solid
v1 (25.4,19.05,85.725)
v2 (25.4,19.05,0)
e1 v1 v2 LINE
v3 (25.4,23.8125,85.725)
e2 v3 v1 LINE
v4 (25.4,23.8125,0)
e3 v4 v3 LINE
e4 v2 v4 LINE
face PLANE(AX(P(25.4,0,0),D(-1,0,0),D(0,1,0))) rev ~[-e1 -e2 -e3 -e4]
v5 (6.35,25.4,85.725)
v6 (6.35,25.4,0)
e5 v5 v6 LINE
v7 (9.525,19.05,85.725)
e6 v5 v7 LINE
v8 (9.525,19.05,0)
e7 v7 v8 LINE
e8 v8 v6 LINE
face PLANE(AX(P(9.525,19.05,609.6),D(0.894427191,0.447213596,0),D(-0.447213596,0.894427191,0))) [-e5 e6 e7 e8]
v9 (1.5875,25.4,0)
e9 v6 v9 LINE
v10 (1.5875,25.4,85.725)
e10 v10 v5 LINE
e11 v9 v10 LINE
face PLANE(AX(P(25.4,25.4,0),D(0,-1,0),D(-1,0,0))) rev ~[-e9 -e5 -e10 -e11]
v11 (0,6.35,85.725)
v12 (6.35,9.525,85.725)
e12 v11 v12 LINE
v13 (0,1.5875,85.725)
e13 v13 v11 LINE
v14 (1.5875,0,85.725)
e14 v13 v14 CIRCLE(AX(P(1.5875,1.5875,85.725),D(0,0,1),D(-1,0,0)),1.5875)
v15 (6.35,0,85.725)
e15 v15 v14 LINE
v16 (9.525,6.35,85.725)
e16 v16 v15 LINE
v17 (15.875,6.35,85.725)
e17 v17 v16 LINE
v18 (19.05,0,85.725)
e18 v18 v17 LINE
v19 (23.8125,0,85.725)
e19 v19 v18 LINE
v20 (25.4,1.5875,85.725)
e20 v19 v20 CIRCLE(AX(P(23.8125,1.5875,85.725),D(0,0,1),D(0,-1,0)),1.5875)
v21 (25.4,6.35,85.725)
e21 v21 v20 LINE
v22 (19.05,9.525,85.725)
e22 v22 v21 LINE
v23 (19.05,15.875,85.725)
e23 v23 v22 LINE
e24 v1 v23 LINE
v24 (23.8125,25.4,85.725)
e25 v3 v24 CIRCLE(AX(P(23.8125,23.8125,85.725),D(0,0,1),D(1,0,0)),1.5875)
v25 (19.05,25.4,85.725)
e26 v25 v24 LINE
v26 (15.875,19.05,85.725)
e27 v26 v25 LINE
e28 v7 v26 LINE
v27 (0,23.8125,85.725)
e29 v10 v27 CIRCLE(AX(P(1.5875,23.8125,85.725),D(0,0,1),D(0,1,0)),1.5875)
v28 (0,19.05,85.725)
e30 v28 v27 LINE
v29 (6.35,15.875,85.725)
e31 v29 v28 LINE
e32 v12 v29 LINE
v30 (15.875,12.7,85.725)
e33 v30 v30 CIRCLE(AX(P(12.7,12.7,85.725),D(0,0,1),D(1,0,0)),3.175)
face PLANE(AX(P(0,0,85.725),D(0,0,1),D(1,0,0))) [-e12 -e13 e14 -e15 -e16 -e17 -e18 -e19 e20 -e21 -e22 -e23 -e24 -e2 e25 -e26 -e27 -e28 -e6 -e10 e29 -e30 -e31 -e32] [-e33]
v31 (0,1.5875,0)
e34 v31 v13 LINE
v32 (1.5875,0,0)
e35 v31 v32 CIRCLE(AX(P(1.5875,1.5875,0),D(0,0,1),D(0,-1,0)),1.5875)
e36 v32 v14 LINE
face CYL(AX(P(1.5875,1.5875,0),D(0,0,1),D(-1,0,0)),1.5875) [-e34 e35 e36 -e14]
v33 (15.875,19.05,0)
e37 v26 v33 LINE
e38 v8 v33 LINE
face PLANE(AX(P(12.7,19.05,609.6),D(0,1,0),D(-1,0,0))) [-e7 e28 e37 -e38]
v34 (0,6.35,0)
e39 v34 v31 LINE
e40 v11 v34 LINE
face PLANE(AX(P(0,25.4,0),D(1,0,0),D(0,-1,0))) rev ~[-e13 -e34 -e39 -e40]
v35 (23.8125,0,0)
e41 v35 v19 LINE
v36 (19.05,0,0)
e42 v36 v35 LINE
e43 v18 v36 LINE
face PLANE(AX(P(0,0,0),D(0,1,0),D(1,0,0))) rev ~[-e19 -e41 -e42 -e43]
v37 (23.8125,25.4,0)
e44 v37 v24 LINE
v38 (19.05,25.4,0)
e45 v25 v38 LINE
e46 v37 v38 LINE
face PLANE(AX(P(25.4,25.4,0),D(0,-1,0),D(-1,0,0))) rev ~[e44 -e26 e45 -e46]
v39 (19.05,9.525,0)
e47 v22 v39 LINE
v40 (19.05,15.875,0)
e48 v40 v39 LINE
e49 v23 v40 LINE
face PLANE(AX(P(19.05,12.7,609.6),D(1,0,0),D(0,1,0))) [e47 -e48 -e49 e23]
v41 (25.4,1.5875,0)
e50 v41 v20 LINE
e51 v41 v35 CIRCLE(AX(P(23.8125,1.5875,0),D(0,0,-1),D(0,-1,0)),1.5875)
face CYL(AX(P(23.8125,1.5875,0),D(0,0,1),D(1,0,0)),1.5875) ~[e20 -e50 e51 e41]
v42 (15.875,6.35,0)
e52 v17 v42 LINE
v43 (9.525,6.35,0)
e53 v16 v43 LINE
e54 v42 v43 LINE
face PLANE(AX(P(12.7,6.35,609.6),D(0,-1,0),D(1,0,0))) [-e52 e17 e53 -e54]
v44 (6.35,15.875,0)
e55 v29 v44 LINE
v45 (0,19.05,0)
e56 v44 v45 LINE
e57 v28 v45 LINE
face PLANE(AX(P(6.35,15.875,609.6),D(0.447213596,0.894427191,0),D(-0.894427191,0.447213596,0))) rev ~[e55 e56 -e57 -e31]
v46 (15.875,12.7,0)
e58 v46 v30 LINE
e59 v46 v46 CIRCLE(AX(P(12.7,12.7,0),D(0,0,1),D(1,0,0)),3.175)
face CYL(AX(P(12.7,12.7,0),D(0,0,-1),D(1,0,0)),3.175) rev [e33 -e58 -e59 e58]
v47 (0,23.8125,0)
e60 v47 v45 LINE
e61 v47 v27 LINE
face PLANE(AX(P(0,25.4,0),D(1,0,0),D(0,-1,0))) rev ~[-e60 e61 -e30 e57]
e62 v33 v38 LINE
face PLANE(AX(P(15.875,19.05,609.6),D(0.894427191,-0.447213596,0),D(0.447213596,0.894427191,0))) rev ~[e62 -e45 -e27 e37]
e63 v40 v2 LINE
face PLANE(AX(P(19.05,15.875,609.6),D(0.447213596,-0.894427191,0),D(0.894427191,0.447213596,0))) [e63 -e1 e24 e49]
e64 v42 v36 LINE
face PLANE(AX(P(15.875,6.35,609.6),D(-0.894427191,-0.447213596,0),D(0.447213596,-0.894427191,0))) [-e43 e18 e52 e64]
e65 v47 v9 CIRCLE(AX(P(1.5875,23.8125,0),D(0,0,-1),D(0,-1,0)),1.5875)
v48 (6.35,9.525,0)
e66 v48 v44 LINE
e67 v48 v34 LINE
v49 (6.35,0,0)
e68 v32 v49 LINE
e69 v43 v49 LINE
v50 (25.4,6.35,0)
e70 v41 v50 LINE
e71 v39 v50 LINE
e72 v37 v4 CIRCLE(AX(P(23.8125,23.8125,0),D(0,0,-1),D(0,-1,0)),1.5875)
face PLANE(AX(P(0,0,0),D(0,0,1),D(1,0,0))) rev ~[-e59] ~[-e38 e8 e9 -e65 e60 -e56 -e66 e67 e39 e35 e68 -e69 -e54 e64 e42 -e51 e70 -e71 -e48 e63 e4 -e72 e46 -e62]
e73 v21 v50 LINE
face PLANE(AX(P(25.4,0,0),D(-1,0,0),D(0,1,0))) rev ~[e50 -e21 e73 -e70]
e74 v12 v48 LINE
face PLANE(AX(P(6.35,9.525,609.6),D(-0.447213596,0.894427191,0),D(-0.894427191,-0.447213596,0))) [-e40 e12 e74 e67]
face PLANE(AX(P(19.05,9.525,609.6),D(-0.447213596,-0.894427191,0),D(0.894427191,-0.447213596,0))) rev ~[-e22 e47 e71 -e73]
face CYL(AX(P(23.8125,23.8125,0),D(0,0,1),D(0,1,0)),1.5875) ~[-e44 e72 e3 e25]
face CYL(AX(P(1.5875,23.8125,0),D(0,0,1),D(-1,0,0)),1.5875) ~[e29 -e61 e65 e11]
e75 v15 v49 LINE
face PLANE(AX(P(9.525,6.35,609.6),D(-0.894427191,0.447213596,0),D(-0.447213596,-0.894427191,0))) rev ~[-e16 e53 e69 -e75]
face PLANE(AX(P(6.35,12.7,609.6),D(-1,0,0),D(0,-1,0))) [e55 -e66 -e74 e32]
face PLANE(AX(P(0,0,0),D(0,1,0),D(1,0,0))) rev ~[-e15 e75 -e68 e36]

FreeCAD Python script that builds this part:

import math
import FreeCAD as App
import Part
import Sketcher

V = App.Vector
Q = App.Units.Quantity


def edges_at(feature, points):
    """Names of the edges that pass closest to the given points."""
    edges = feature.Shape.Edges
    near = lambda p: min(range(len(edges)), key=lambda i: edges[i].distToShape(Part.Vertex(*p))[0])
    return sorted({f"Edge{near(p) + 1}" for p in points})


def add_polygon(sketch, points):
    """Adds a closed chain of lines whose ends are joined by coincident constraints."""
    first, n = sketch.GeometryCount, len(points)
    for a, b in zip(points, points[1:] + points[:1]):
        sketch.addGeometry(Part.LineSegment(App.Vector(*a, 0), App.Vector(*b, 0)), False)
    for i in range(n):
        sketch.addConstraint(Sketcher.Constraint("Coincident", first + i, 2, first + (i + 1) % n, 1))

doc = App.newDocument("Part")
params = doc.addObject("Spreadsheet::Sheet", "Params")
for row, (alias, value) in enumerate([
    ("sketch1_diameter", "0.25 in"),
    ("sketch1_width", "1 in"),
    ("pad1_length", "24 in"),
    ("fillet_radius", "0.0625 in"),
    ("sketch2_width", "0.25 in"),
    ("sketch2_width2", "0.5 in"),
    ("pocket1_length", "24 in"),
    ("sketch3_diameter", "0.25 in"),
    ("sketch3_radius", "0.0625 in"),
    ("sketch3_width", "0.25 in"),
    ("pocket2_length", "20.375 in"),
    ("sketch4_diameter", "0.25 in"),
    ("sketch4_radius", "0.0625 in"),
    ("sketch4_width", "0.25 in"),
    ("pocket3_length", "0.25 in"),
], start=1):
    params.set(f"A{row}", alias)
    params.set(f"B{row}", "=" + value)
    params.setAlias(f"B{row}", alias)

body = doc.addObject("PartDesign::Body", "Body")

# Sketch on XY plane
sketch1 = body.newObject("Sketcher::SketchObject", "Sketch")
sketch1.AttachmentSupport = (doc.getObject("XY_Plane"), [""])
sketch1.MapMode = "FlatFace"
add_polygon(sketch1, [(0, 25.4), (0, 0), (25.4, 0), (25.4, 25.4)])  # lines 0-3
sketch1.addGeometry(Part.Circle(V(12.7, 12.7, 0), V(0, 0, 1), 3.2), False)  # 4
sketch1.addConstraint([
    Sketcher.Constraint("Vertical", 0),
    Sketcher.Constraint("Horizontal", 1),
    Sketcher.Constraint("Vertical", 2),
    Sketcher.Constraint("Horizontal", 3),
    Sketcher.Constraint("Coincident", 0, 2, -1, 1),
    Sketcher.Constraint("Equal", 3, 0),
    Sketcher.Constraint("Diameter", 4, Q("0.25 in")),
    Sketcher.Constraint("DistanceX", 1, 1, 1, 2, Q("1 in")),
    Sketcher.Constraint("DistanceX", -1, 1, 4, 3, Q("0.5 in")),
    Sketcher.Constraint("DistanceY", -1, 1, 4, 3, Q("0.5 in")),
])
sketch1.setExpression("Constraints[10]", "Params.sketch1_diameter")
sketch1.setExpression("Constraints[11]", "Params.sketch1_width")
pad1 = body.newObject("PartDesign::Pad", "Pad")
pad1.Profile = sketch1
pad1.setExpression("Length", "Params.pad1_length")
doc.recompute()

fillet = body.newObject("PartDesign::Fillet", "Fillet")
fillet.Base = (pad1, edges_at(pad1, [
    (25.4, 25.4, 304.8),
    (0, 25.4, 304.8),
    (25.4, 0, 304.8),
    (0, 0, 304.8),
]))
fillet.setExpression("Radius", "Params.fillet_radius")

# Sketch on XY plane
sketch2 = body.newObject("Sketcher::SketchObject", "Sketch001")
sketch2.AttachmentSupport = (doc.getObject("XY_Plane"), [""])
sketch2.MapMode = "FlatFace"
sketch2.AttachmentOffset = App.Placement(V(0, 0, 24 * 25.4), App.Rotation())
add_polygon(sketch2, [(16, 19), (19, 25), (6, 25), (10, 19)])  # lines 0-3
sketch2.addConstraint([
    Sketcher.Constraint("Horizontal", 1),
    Sketcher.Constraint("Horizontal", 3),
    Sketcher.Constraint("Equal", 0, 2),
    Sketcher.Constraint("DistanceX", 3, 1, 3, 2, Q("0.25 in")),
    Sketcher.Constraint("DistanceX", -1, 1, 1, 2, Q("0.25 in")),
    Sketcher.Constraint("DistanceY", 2, 2, 1, 2, Q("0.25 in")),
    Sketcher.Constraint("DistanceX", 1, 2, 1, 1, Q("0.5 in")),
    Sketcher.Constraint("DistanceY", -1, 1, 0, 2, Q("1 in")),
])
sketch2.setExpression("Constraints[7]", "Params.sketch2_width")
sketch2.setExpression("Constraints[10]", "Params.sketch2_width2")
pocket1 = body.newObject("PartDesign::Pocket", "Pocket")
pocket1.Profile = sketch2
pocket1.setExpression("Length", "Params.pocket1_length")
doc.recompute()

datumline = body.newObject("PartDesign::Line", "DatumLine")
datumline.Placement = App.Placement(V(12.7, 12.7, 0), App.Rotation(V(0, 0, 1), V(0, 0, 1)))
polarpattern = body.newObject("PartDesign::PolarPattern", "PolarPattern")
polarpattern.Originals = [pocket1]
polarpattern.Axis = (datumline, [""])
polarpattern.Angle = 360
polarpattern.Occurrences = 4
body.Tip = polarpattern

# Sketch on XY plane
sketch3 = body.newObject("Sketcher::SketchObject", "Sketch002")
sketch3.AttachmentSupport = (doc.getObject("XY_Plane"), [""])
sketch3.MapMode = "FlatFace"
sketch3.AttachmentOffset = App.Placement(V(0, 0, 24 * 25.4), App.Rotation())
sketch3.addGeometry([
    Part.LineSegment(V(19.1, 9.5, 0), V(19.1, 15.9, 0)),  # 0
    Part.LineSegment(V(19.1, 15.9, 0), V(25.4, 19.1, 0)),  # 1
    Part.LineSegment(V(25.4, 19.1, 0), V(25.4, 23.8, 0)),  # 2
    Part.ArcOfCircle(Part.Circle(V(23.8, 23.8, 0), V(0, 0, 1), 1.6), math.radians(0), math.radians(90)),  # 3
    Part.LineSegment(V(23.8, 25.4, 0), V(19.1, 25.4, 0)),  # 4
    Part.LineSegment(V(19.1, 25.4, 0), V(15.9, 19.1, 0)),  # 5
    Part.LineSegment(V(15.9, 19.1, 0), V(9.5, 19.1, 0)),  # 6
    Part.LineSegment(V(9.5, 19.1, 0), V(6.3, 25.4, 0)),  # 7
    Part.LineSegment(V(6.3, 25.4, 0), V(1.6, 25.4, 0)),  # 8
    Part.ArcOfCircle(Part.Circle(V(1.6, 23.8, 0), V(0, 0, 1), 1.6), math.radians(90), math.radians(180)),  # 9
    Part.LineSegment(V(0, 23.8, 0), V(0, 19.1, 0)),  # 10
    Part.LineSegment(V(0, 19.1, 0), V(6.3, 15.9, 0)),  # 11
    Part.LineSegment(V(6.3, 15.9, 0), V(6.3, 9.5, 0)),  # 12
    Part.LineSegment(V(6.3, 9.5, 0), V(0, 6.3, 0)),  # 13
    Part.LineSegment(V(0, 6.3, 0), V(0, 1.6, 0)),  # 14
    Part.ArcOfCircle(Part.Circle(V(1.6, 1.6, 0), V(0, 0, 1), 1.6), math.radians(180), math.radians(270)),  # 15
    Part.LineSegment(V(1.6, 0, 0), V(6.3, 0, 0)),  # 16
    Part.LineSegment(V(6.3, 0, 0), V(9.5, 6.3, 0)),  # 17
    Part.LineSegment(V(9.5, 6.3, 0), V(15.9, 6.3, 0)),  # 18
    Part.LineSegment(V(15.9, 6.3, 0), V(19.1, 0, 0)),  # 19
    Part.LineSegment(V(19.1, 0, 0), V(23.8, 0, 0)),  # 20
    Part.ArcOfCircle(Part.Circle(V(23.8, 1.6, 0), V(0, 0, 1), 1.6), math.radians(-90), math.radians(0)),  # 21
    Part.LineSegment(V(25.4, 1.6, 0), V(25.4, 6.3, 0)),  # 22
    Part.LineSegment(V(25.4, 6.3, 0), V(19.1, 9.5, 0)),  # 23
    Part.Circle(V(12.7, 12.7, 0), V(0, 0, 1), 3.2),  # 24
], False)
sketch3.addConstraint([
    Sketcher.Constraint("Coincident", 0, 2, 1, 1),
    Sketcher.Constraint("Coincident", 1, 2, 2, 1),
    Sketcher.Constraint("Tangent", 2, 2, 3, 1),
    Sketcher.Constraint("Tangent", 3, 2, 4, 1),
    Sketcher.Constraint("Coincident", 4, 2, 5, 1),
    Sketcher.Constraint("Coincident", 5, 2, 6, 1),
    Sketcher.Constraint("Coincident", 6, 2, 7, 1),
    Sketcher.Constraint("Coincident", 7, 2, 8, 1),
    Sketcher.Constraint("Tangent", 8, 2, 9, 1),
    Sketcher.Constraint("Tangent", 9, 2, 10, 1),
    Sketcher.Constraint("Coincident", 10, 2, 11, 1),
    Sketcher.Constraint("Coincident", 11, 2, 12, 1),
    Sketcher.Constraint("Coincident", 12, 2, 13, 1),
    Sketcher.Constraint("Coincident", 13, 2, 14, 1),
    Sketcher.Constraint("Tangent", 14, 2, 15, 1),
    Sketcher.Constraint("Tangent", 15, 2, 16, 1),
    Sketcher.Constraint("Coincident", 16, 2, 17, 1),
    Sketcher.Constraint("Coincident", 17, 2, 18, 1),
    Sketcher.Constraint("Coincident", 18, 2, 19, 1),
    Sketcher.Constraint("Coincident", 19, 2, 20, 1),
    Sketcher.Constraint("Tangent", 20, 2, 21, 1),
    Sketcher.Constraint("Tangent", 21, 2, 22, 1),
    Sketcher.Constraint("Coincident", 22, 2, 23, 1),
    Sketcher.Constraint("Coincident", 23, 2, 0, 1),
    Sketcher.Constraint("Vertical", 0),
    Sketcher.Constraint("Vertical", 2),
    Sketcher.Constraint("Horizontal", 4),
    Sketcher.Constraint("Horizontal", 6),
    Sketcher.Constraint("Horizontal", 8),
    Sketcher.Constraint("Vertical", 10),
    Sketcher.Constraint("Vertical", 12),
    Sketcher.Constraint("Vertical", 14),
    Sketcher.Constraint("Horizontal", 16),
    Sketcher.Constraint("Horizontal", 18),
    Sketcher.Constraint("Horizontal", 20),
    Sketcher.Constraint("Vertical", 22),
    Sketcher.Constraint("Equal", 3, 9),
    Sketcher.Constraint("Equal", 9, 15),
    Sketcher.Constraint("Equal", 15, 21),
    Sketcher.Constraint("PointOnObject", 9, 2, -2),
    Sketcher.Constraint("PointOnObject", 13, 2, -2),
    Sketcher.Constraint("PointOnObject", 15, 2, -1),
    Sketcher.Constraint("PointOnObject", 19, 2, -1),
    Sketcher.Constraint("Perpendicular", 1, 7),
    Sketcher.Constraint("Perpendicular", 5, 11),
    Sketcher.Constraint("Perpendicular", 7, 13),
    Sketcher.Constraint("Perpendicular", 11, 17),
    Sketcher.Constraint("Perpendicular", 13, 19),
    Sketcher.Constraint("Perpendicular", 17, 23),
    Sketcher.Constraint("Horizontal", 3, 3, 9, 3),
    Sketcher.Constraint("Horizontal", 1, 2, 5, 2),
    Sketcher.Constraint("Horizontal", 6, 2, 10, 2),
    Sketcher.Constraint("Horizontal", 0, 2, 11, 2),
    Sketcher.Constraint("Horizontal", 13, 2, 17, 2),
    Sketcher.Constraint("Horizontal", 18, 2, 22, 2),
    Sketcher.Constraint("Horizontal", 12, 2, 23, 2),
    Sketcher.Constraint("Vertical", 3, 3, 21, 3),
    Sketcher.Constraint("Vertical", 0, 2, 4, 2),
    Sketcher.Constraint("Vertical", 7, 2, 11, 2),
    Sketcher.Constraint("Vertical", 12, 2, 16, 2),
    Sketcher.Constraint("Vertical", 6, 2, 17, 2),
    Sketcher.Constraint("Vertical", 5, 2, 18, 2),
    Sketcher.Constraint("Equal", 18, 0),
    Sketcher.Constraint("Equal", 20, 2),
    Sketcher.Constraint("Diameter", 24, Q("0.25 in")),
    Sketcher.Constraint("DistanceX", -1, 1, 1, 2, Q("1 in")),
    Sketcher.Constraint("Radius", 3, Q("0.0625 in")),
    Sketcher.Constraint("DistanceX", 6, 2, 6, 1, Q("0.25 in")),
    Sketcher.Constraint("DistanceX", -1, 1, 24, 3, Q("0.5 in")),
    Sketcher.Constraint("DistanceY", -1, 1, 24, 3, Q("0.5 in")),
    Sketcher.Constraint("DistanceX", 7, 2, 4, 2, Q("0.5 in")),
])
sketch3.setExpression("Constraints[64]", "Params.sketch3_diameter")
sketch3.setExpression("Constraints[66]", "Params.sketch3_radius")
sketch3.setExpression("Constraints[67]", "Params.sketch3_width")
pocket2 = body.newObject("PartDesign::Pocket", "Pocket001")
pocket2.Profile = sketch3
pocket2.setExpression("Length", "Params.pocket2_length")

# Sketch on XY plane
sketch4 = body.newObject("Sketcher::SketchObject", "Sketch003")
sketch4.AttachmentSupport = (doc.getObject("XY_Plane"), [""])
sketch4.MapMode = "FlatFace"
sketch4.AttachmentOffset = App.Placement(V(0, 0, 3.625 * 25.4), App.Rotation())
sketch4.addGeometry([
    Part.LineSegment(V(19.1, 15.9, 0), V(25.4, 19.1, 0)),  # 0
    Part.LineSegment(V(25.4, 19.1, 0), V(25.4, 23.8, 0)),  # 1
    Part.ArcOfCircle(Part.Circle(V(23.8, 23.8, 0), V(0, 0, 1), 1.6), math.radians(0), math.radians(90)),  # 2
    Part.LineSegment(V(23.8, 25.4, 0), V(19.1, 25.4, 0)),  # 3
    Part.LineSegment(V(19.1, 25.4, 0), V(15.9, 19.1, 0)),  # 4
    Part.LineSegment(V(15.9, 19.1, 0), V(9.5, 19.1, 0)),  # 5
    Part.LineSegment(V(9.5, 19.1, 0), V(6.3, 25.4, 0)),  # 6
    Part.LineSegment(V(6.3, 25.4, 0), V(1.6, 25.4, 0)),  # 7
    Part.ArcOfCircle(Part.Circle(V(1.6, 23.8, 0), V(0, 0, 1), 1.6), math.radians(90), math.radians(180)),  # 8
    Part.LineSegment(V(0, 23.8, 0), V(0, 19.1, 0)),  # 9
    Part.LineSegment(V(0, 19.1, 0), V(6.3, 15.9, 0)),  # 10
    Part.LineSegment(V(6.3, 15.9, 0), V(6.3, 9.5, 0)),  # 11
    Part.LineSegment(V(6.3, 9.5, 0), V(0, 6.3, 0)),  # 12
    Part.LineSegment(V(0, 6.3, 0), V(0, 1.6, 0)),  # 13
    Part.ArcOfCircle(Part.Circle(V(1.6, 1.6, 0), V(0, 0, 1), 1.6), math.radians(180), math.radians(270)),  # 14
    Part.LineSegment(V(1.6, 0, 0), V(6.3, 0, 0)),  # 15
    Part.LineSegment(V(6.3, 0, 0), V(9.5, 6.3, 0)),  # 16
    Part.LineSegment(V(9.5, 6.3, 0), V(15.9, 6.3, 0)),  # 17
    Part.LineSegment(V(15.9, 6.3, 0), V(19.1, 0, 0)),  # 18
    Part.LineSegment(V(19.1, 0, 0), V(23.8, 0, 0)),  # 19
    Part.ArcOfCircle(Part.Circle(V(23.8, 1.6, 0), V(0, 0, 1), 1.6), math.radians(-90), math.radians(0)),  # 20
    Part.LineSegment(V(25.4, 1.6, 0), V(25.4, 6.3, 0)),  # 21
    Part.LineSegment(V(25.4, 6.3, 0), V(19.1, 9.5, 0)),  # 22
    Part.LineSegment(V(19.1, 9.5, 0), V(19.1, 15.9, 0)),  # 23
    Part.Circle(V(12.7, 12.7, 0), V(0, 0, 1), 3.2),  # 24
], False)
sketch4.addConstraint([
    Sketcher.Constraint("Coincident", 0, 2, 1, 1),
    Sketcher.Constraint("Tangent", 1, 2, 2, 1),
    Sketcher.Constraint("Tangent", 2, 2, 3, 1),
    Sketcher.Constraint("Coincident", 3, 2, 4, 1),
    Sketcher.Constraint("Coincident", 4, 2, 5, 1),
    Sketcher.Constraint("Coincident", 5, 2, 6, 1),
    Sketcher.Constraint("Coincident", 6, 2, 7, 1),
    Sketcher.Constraint("Tangent", 7, 2, 8, 1),
    Sketcher.Constraint("Tangent", 8, 2, 9, 1),
    Sketcher.Constraint("Coincident", 9, 2, 10, 1),
    Sketcher.Constraint("Coincident", 10, 2, 11, 1),
    Sketcher.Constraint("Coincident", 11, 2, 12, 1),
    Sketcher.Constraint("Coincident", 12, 2, 13, 1),
    Sketcher.Constraint("Tangent", 13, 2, 14, 1),
    Sketcher.Constraint("Tangent", 14, 2, 15, 1),
    Sketcher.Constraint("Coincident", 15, 2, 16, 1),
    Sketcher.Constraint("Coincident", 16, 2, 17, 1),
    Sketcher.Constraint("Coincident", 17, 2, 18, 1),
    Sketcher.Constraint("Coincident", 18, 2, 19, 1),
    Sketcher.Constraint("Tangent", 19, 2, 20, 1),
    Sketcher.Constraint("Tangent", 20, 2, 21, 1),
    Sketcher.Constraint("Coincident", 21, 2, 22, 1),
    Sketcher.Constraint("Coincident", 22, 2, 23, 1),
    Sketcher.Constraint("Coincident", 23, 2, 0, 1),
    Sketcher.Constraint("Vertical", 1),
    Sketcher.Constraint("Horizontal", 3),
    Sketcher.Constraint("Horizontal", 5),
    Sketcher.Constraint("Horizontal", 7),
    Sketcher.Constraint("Vertical", 9),
    Sketcher.Constraint("Vertical", 11),
    Sketcher.Constraint("Vertical", 13),
    Sketcher.Constraint("Horizontal", 15),
    Sketcher.Constraint("Horizontal", 17),
    Sketcher.Constraint("Horizontal", 19),
    Sketcher.Constraint("Vertical", 21),
    Sketcher.Constraint("Vertical", 23),
    Sketcher.Constraint("Equal", 2, 8),
    Sketcher.Constraint("Equal", 8, 14),
    Sketcher.Constraint("Equal", 14, 20),
    Sketcher.Constraint("PointOnObject", 8, 2, -2),
    Sketcher.Constraint("PointOnObject", 12, 2, -2),
    Sketcher.Constraint("PointOnObject", 14, 2, -1),
    Sketcher.Constraint("PointOnObject", 18, 2, -1),
    Sketcher.Constraint("Perpendicular", 0, 6),
    Sketcher.Constraint("Perpendicular", 4, 10),
    Sketcher.Constraint("Perpendicular", 6, 12),
    Sketcher.Constraint("Perpendicular", 10, 16),
    Sketcher.Constraint("Perpendicular", 12, 18),
    Sketcher.Constraint("Perpendicular", 16, 22),
    Sketcher.Constraint("Horizontal", 2, 3, 8, 3),
    Sketcher.Constraint("Horizontal", 0, 2, 4, 2),
    Sketcher.Constraint("Horizontal", 5, 2, 9, 2),
    Sketcher.Constraint("Horizontal", 12, 2, 16, 2),
    Sketcher.Constraint("Horizontal", 17, 2, 21, 2),
    Sketcher.Constraint("Horizontal", 11, 2, 22, 2),
    Sketcher.Constraint("Horizontal", 10, 2, 23, 2),
    Sketcher.Constraint("Vertical", 2, 3, 20, 3),
    Sketcher.Constraint("Vertical", 6, 2, 10, 2),
    Sketcher.Constraint("Vertical", 11, 2, 15, 2),
    Sketcher.Constraint("Vertical", 5, 2, 16, 2),
    Sketcher.Constraint("Vertical", 4, 2, 17, 2),
    Sketcher.Constraint("Vertical", 18, 2, 22, 2),
    Sketcher.Constraint("Equal", 19, 1),
    Sketcher.Constraint("Equal", 17, 11),
    Sketcher.Constraint("Diameter", 24, Q("0.25 in")),
    Sketcher.Constraint("DistanceX", -1, 1, 0, 2, Q("1 in")),
    Sketcher.Constraint("Radius", 2, Q("0.0625 in")),
    Sketcher.Constraint("DistanceX", 5, 2, 5, 1, Q("0.25 in")),
    Sketcher.Constraint("DistanceX", -1, 1, 24, 3, Q("0.5 in")),
    Sketcher.Constraint("DistanceY", -1, 1, 24, 3, Q("0.5 in")),
    Sketcher.Constraint("DistanceX", 6, 2, 3, 2, Q("0.5 in")),
])
sketch4.setExpression("Constraints[64]", "Params.sketch4_diameter")
sketch4.setExpression("Constraints[66]", "Params.sketch4_radius")
sketch4.setExpression("Constraints[67]", "Params.sketch4_width")
pocket3 = body.newObject("PartDesign::Pocket", "Pocket002")
pocket3.Profile = sketch4
pocket3.setExpression("Length", "Params.pocket3_length")

doc.recompute()
